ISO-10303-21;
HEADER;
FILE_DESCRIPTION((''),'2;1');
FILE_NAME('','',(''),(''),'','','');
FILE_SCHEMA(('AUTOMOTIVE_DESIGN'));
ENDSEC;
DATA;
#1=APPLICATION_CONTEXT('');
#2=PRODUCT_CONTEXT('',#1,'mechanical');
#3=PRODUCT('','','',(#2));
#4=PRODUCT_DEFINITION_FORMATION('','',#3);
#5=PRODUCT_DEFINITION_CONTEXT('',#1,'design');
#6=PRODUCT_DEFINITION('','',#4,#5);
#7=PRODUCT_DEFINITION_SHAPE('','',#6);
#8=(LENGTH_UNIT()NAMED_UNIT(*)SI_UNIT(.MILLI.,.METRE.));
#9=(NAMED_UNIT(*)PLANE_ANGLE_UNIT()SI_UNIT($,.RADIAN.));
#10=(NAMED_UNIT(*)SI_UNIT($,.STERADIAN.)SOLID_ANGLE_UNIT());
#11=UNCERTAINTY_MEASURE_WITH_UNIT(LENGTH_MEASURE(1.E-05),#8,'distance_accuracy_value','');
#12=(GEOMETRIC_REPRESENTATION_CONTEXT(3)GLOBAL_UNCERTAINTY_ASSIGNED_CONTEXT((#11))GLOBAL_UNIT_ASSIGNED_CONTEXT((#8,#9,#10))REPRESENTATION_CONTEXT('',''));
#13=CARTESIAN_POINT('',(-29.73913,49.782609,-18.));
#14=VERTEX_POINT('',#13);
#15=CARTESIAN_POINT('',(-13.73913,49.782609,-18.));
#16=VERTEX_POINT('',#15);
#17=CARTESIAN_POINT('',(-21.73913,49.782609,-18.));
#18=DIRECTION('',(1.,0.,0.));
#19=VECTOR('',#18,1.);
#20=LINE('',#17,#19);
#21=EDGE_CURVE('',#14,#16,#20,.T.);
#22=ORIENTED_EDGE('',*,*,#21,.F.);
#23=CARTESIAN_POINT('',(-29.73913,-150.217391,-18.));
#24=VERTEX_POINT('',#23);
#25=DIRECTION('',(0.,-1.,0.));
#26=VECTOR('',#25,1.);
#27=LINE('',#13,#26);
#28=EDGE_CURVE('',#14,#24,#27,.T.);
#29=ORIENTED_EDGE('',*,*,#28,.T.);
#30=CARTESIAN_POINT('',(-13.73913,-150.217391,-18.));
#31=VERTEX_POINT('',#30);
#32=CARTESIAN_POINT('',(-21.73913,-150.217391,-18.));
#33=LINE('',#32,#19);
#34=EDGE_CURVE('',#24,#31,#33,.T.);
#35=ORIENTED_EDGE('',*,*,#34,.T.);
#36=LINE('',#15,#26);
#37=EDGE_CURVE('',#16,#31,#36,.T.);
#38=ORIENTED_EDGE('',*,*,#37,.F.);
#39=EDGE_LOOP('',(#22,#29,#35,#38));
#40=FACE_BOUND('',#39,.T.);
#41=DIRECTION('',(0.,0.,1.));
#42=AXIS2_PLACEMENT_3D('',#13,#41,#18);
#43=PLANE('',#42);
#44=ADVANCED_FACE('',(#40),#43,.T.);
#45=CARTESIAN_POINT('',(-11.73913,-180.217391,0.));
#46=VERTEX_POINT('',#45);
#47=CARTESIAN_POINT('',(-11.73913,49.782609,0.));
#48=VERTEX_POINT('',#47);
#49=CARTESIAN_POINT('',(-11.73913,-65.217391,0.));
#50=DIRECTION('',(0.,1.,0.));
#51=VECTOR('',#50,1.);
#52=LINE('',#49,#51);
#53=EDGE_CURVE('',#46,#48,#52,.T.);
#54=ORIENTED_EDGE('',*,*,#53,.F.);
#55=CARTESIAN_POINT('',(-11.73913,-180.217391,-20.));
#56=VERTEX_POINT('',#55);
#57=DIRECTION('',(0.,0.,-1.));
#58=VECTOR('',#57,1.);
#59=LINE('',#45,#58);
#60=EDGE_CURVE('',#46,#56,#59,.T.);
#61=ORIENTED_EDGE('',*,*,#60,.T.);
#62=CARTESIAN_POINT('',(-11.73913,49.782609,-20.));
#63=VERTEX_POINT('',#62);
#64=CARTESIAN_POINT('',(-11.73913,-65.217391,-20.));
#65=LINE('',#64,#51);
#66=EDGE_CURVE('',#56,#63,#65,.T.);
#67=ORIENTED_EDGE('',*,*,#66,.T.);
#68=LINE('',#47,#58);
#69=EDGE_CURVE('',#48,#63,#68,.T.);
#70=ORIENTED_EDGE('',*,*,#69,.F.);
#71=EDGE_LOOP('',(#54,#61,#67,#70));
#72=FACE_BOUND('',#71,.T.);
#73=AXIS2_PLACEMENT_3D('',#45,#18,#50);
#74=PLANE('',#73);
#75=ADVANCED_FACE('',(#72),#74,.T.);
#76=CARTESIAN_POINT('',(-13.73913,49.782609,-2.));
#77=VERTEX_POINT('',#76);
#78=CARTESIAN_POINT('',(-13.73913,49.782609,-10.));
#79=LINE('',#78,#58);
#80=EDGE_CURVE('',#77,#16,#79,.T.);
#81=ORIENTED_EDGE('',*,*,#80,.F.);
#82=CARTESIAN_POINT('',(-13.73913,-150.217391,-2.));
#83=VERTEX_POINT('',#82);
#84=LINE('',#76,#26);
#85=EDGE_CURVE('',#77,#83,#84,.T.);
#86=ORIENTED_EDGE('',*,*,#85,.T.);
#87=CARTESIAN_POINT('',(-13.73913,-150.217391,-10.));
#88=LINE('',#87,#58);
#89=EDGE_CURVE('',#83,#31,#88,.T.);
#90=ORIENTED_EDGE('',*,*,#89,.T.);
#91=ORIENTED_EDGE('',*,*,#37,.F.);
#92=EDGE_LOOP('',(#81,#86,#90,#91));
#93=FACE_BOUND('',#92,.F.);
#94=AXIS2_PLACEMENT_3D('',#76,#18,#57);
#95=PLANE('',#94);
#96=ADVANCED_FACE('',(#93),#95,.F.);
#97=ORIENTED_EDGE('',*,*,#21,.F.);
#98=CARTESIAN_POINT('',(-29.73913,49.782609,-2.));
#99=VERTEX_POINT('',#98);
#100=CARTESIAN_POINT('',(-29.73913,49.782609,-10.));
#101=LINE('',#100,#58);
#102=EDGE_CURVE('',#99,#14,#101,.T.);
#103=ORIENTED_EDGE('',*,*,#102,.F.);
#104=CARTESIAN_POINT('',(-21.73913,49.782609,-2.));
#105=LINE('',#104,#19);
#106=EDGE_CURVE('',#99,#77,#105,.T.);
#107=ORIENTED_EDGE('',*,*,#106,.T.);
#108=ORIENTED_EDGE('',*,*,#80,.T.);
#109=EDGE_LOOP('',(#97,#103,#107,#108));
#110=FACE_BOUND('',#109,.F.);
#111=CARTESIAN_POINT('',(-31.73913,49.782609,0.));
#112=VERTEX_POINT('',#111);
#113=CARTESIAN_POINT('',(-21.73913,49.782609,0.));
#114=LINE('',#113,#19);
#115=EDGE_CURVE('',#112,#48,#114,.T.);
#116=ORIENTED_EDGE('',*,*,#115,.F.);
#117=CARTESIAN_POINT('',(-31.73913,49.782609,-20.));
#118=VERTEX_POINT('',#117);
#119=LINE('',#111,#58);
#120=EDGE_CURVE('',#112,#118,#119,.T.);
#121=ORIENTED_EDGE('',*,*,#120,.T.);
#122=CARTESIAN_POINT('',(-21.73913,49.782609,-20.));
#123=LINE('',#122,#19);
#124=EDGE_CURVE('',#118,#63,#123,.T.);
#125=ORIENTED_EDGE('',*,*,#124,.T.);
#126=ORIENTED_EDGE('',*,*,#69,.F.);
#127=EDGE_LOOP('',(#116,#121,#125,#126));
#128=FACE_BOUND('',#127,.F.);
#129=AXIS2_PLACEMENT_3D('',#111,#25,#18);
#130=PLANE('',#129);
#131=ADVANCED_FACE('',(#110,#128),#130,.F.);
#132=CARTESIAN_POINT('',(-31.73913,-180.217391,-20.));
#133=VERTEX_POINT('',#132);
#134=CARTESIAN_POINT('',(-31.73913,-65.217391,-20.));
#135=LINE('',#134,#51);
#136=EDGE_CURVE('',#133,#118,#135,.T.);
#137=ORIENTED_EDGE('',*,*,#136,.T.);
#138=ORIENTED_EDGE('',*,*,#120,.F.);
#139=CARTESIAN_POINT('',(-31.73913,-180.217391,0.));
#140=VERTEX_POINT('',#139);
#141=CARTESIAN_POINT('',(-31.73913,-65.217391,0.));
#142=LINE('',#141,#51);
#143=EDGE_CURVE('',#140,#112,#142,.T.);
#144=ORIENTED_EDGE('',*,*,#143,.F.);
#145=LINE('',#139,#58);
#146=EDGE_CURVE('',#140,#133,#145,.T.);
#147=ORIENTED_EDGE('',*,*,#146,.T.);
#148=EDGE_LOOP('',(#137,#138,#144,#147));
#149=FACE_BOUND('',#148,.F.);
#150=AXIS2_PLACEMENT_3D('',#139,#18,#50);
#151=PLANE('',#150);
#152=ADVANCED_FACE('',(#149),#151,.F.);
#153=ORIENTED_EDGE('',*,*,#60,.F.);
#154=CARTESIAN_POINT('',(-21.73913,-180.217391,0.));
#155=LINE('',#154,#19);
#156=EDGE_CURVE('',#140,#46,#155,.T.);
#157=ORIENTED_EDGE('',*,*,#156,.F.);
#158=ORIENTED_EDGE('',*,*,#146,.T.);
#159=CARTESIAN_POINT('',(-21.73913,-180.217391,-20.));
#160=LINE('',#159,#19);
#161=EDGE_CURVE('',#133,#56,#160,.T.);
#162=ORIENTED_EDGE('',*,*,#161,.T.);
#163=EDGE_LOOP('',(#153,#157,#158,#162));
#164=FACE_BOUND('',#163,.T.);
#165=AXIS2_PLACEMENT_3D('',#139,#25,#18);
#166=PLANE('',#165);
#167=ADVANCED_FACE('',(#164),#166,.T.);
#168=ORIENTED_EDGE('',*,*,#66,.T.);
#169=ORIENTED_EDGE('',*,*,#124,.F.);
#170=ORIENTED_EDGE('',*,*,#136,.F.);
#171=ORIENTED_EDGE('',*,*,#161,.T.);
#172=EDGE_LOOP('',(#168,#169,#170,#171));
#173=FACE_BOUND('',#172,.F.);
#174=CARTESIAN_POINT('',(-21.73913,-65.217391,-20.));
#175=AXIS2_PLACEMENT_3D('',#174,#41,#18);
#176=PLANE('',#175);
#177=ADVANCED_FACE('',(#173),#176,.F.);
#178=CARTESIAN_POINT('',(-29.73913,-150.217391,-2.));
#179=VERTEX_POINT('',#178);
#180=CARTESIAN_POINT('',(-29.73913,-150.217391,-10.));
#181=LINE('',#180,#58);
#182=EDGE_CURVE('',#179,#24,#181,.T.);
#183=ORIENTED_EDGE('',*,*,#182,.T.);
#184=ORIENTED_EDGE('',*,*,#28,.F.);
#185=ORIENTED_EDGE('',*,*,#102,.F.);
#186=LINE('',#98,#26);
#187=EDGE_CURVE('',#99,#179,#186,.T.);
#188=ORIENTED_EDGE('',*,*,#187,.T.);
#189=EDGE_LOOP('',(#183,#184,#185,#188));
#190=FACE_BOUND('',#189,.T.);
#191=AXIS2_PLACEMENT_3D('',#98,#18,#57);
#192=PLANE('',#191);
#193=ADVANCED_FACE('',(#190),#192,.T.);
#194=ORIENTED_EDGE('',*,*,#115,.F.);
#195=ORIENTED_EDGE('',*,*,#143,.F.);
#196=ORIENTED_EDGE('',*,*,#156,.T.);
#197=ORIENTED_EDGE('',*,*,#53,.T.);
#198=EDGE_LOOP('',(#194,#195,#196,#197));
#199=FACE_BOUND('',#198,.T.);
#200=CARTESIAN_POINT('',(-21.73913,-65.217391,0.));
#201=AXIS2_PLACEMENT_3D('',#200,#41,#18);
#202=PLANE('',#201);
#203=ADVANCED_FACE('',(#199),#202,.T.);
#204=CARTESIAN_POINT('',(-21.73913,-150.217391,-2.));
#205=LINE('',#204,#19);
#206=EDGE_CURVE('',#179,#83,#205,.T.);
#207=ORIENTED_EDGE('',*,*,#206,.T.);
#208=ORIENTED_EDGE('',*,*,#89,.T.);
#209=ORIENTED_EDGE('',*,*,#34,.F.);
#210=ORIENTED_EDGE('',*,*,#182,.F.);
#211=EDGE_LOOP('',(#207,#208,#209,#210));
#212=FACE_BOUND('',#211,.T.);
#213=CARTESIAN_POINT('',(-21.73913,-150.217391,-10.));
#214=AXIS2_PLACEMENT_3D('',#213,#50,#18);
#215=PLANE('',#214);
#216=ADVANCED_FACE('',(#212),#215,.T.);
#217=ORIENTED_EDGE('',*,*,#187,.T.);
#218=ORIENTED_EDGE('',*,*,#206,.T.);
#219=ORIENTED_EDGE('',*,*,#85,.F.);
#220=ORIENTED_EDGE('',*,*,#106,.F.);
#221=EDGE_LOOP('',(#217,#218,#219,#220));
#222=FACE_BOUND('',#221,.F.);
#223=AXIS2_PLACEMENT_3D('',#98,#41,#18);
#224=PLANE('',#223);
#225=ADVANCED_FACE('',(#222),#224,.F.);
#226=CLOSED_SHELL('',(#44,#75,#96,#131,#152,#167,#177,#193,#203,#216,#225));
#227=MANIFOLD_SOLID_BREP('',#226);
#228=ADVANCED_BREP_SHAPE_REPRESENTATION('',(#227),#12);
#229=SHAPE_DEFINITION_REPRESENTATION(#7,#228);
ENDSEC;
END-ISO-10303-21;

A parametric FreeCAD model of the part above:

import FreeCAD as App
import Part
import Sketcher


def add_polygon(sketch, points):
    """Adds a closed chain of lines whose ends are joined by coincident constraints."""
    first, n = sketch.GeometryCount, len(points)
    for a, b in zip(points, points[1:] + points[:1]):
        sketch.addGeometry(Part.LineSegment(App.Vector(*a, 0), App.Vector(*b, 0)), False)
    for i in range(n):
        sketch.addConstraint(Sketcher.Constraint("Coincident", first + i, 2, first + (i + 1) % n, 1))

doc = App.newDocument("Part")
body = doc.addObject("PartDesign::Body", "Body")

sketch1 = body.newObject("Sketcher::SketchObject", "Sketch")
sketch1.AttachmentSupport = (doc.getObject("XY_Plane"), [""])
sketch1.MapMode = "FlatFace"
add_polygon(sketch1, [(-32, 50), (-32, -180), (-12, -180), (-12, 50)])
sketch1.addConstraint(Sketcher.Constraint("Vertical", 0))
sketch1.addConstraint(Sketcher.Constraint("Horizontal", 1))
sketch1.addConstraint(Sketcher.Constraint("Vertical", 2))
sketch1.addConstraint(Sketcher.Constraint("Horizontal", 3))
sketch1.addConstraint(Sketcher.Constraint("DistanceX", 1, 1, 1, 2, 20.0))
sketch1.addConstraint(Sketcher.Constraint("DistanceY", 0, 2, 0, 1, 230.0))
sketch1.addConstraint(Sketcher.Constraint("DistanceX", 0, 2, -1, 1, 31.73913))
sketch1.addConstraint(Sketcher.Constraint("DistanceY", 0, 2, -1, 1, 180.217391))
pad1 = body.newObject("PartDesign::Pad", "Pad")
pad1.Profile = sketch1
pad1.Length = 20
pad1.Reversed = True

sketch2 = body.newObject("Sketcher::SketchObject", "Sketch001")
sketch2.AttachmentSupport = (doc.getObject("XZ_Plane"), [""])
sketch2.MapMode = "FlatFace"
sketch2.AttachmentOffset = App.Placement(App.Vector(0, 0, -49.782609), App.Rotation())
add_polygon(sketch2, [(-30, -18), (-30, -2), (-14, -2), (-14, -18)])
sketch2.addConstraint(Sketcher.Constraint("Vertical", 0))
sketch2.addConstraint(Sketcher.Constraint("Horizontal", 1))
sketch2.addConstraint(Sketcher.Constraint("Vertical", 2))
sketch2.addConstraint(Sketcher.Constraint("Horizontal", 3))
sketch2.addConstraint(Sketcher.Constraint("Equal", 3, 0))
sketch2.addConstraint(Sketcher.Constraint("DistanceX", 1, 1, 1, 2, 16.0))
sketch2.addConstraint(Sketcher.Constraint("DistanceY", 0, 2, -1, 1, 2.0))
sketch2.addConstraint(Sketcher.Constraint("DistanceX", 0, 2, -1, 1, 29.73913))
pocket1 = body.newObject("PartDesign::Pocket", "Pocket")
pocket1.Profile = sketch2
pocket1.Length = 200
pocket1.Reversed = True

doc.recompute()
